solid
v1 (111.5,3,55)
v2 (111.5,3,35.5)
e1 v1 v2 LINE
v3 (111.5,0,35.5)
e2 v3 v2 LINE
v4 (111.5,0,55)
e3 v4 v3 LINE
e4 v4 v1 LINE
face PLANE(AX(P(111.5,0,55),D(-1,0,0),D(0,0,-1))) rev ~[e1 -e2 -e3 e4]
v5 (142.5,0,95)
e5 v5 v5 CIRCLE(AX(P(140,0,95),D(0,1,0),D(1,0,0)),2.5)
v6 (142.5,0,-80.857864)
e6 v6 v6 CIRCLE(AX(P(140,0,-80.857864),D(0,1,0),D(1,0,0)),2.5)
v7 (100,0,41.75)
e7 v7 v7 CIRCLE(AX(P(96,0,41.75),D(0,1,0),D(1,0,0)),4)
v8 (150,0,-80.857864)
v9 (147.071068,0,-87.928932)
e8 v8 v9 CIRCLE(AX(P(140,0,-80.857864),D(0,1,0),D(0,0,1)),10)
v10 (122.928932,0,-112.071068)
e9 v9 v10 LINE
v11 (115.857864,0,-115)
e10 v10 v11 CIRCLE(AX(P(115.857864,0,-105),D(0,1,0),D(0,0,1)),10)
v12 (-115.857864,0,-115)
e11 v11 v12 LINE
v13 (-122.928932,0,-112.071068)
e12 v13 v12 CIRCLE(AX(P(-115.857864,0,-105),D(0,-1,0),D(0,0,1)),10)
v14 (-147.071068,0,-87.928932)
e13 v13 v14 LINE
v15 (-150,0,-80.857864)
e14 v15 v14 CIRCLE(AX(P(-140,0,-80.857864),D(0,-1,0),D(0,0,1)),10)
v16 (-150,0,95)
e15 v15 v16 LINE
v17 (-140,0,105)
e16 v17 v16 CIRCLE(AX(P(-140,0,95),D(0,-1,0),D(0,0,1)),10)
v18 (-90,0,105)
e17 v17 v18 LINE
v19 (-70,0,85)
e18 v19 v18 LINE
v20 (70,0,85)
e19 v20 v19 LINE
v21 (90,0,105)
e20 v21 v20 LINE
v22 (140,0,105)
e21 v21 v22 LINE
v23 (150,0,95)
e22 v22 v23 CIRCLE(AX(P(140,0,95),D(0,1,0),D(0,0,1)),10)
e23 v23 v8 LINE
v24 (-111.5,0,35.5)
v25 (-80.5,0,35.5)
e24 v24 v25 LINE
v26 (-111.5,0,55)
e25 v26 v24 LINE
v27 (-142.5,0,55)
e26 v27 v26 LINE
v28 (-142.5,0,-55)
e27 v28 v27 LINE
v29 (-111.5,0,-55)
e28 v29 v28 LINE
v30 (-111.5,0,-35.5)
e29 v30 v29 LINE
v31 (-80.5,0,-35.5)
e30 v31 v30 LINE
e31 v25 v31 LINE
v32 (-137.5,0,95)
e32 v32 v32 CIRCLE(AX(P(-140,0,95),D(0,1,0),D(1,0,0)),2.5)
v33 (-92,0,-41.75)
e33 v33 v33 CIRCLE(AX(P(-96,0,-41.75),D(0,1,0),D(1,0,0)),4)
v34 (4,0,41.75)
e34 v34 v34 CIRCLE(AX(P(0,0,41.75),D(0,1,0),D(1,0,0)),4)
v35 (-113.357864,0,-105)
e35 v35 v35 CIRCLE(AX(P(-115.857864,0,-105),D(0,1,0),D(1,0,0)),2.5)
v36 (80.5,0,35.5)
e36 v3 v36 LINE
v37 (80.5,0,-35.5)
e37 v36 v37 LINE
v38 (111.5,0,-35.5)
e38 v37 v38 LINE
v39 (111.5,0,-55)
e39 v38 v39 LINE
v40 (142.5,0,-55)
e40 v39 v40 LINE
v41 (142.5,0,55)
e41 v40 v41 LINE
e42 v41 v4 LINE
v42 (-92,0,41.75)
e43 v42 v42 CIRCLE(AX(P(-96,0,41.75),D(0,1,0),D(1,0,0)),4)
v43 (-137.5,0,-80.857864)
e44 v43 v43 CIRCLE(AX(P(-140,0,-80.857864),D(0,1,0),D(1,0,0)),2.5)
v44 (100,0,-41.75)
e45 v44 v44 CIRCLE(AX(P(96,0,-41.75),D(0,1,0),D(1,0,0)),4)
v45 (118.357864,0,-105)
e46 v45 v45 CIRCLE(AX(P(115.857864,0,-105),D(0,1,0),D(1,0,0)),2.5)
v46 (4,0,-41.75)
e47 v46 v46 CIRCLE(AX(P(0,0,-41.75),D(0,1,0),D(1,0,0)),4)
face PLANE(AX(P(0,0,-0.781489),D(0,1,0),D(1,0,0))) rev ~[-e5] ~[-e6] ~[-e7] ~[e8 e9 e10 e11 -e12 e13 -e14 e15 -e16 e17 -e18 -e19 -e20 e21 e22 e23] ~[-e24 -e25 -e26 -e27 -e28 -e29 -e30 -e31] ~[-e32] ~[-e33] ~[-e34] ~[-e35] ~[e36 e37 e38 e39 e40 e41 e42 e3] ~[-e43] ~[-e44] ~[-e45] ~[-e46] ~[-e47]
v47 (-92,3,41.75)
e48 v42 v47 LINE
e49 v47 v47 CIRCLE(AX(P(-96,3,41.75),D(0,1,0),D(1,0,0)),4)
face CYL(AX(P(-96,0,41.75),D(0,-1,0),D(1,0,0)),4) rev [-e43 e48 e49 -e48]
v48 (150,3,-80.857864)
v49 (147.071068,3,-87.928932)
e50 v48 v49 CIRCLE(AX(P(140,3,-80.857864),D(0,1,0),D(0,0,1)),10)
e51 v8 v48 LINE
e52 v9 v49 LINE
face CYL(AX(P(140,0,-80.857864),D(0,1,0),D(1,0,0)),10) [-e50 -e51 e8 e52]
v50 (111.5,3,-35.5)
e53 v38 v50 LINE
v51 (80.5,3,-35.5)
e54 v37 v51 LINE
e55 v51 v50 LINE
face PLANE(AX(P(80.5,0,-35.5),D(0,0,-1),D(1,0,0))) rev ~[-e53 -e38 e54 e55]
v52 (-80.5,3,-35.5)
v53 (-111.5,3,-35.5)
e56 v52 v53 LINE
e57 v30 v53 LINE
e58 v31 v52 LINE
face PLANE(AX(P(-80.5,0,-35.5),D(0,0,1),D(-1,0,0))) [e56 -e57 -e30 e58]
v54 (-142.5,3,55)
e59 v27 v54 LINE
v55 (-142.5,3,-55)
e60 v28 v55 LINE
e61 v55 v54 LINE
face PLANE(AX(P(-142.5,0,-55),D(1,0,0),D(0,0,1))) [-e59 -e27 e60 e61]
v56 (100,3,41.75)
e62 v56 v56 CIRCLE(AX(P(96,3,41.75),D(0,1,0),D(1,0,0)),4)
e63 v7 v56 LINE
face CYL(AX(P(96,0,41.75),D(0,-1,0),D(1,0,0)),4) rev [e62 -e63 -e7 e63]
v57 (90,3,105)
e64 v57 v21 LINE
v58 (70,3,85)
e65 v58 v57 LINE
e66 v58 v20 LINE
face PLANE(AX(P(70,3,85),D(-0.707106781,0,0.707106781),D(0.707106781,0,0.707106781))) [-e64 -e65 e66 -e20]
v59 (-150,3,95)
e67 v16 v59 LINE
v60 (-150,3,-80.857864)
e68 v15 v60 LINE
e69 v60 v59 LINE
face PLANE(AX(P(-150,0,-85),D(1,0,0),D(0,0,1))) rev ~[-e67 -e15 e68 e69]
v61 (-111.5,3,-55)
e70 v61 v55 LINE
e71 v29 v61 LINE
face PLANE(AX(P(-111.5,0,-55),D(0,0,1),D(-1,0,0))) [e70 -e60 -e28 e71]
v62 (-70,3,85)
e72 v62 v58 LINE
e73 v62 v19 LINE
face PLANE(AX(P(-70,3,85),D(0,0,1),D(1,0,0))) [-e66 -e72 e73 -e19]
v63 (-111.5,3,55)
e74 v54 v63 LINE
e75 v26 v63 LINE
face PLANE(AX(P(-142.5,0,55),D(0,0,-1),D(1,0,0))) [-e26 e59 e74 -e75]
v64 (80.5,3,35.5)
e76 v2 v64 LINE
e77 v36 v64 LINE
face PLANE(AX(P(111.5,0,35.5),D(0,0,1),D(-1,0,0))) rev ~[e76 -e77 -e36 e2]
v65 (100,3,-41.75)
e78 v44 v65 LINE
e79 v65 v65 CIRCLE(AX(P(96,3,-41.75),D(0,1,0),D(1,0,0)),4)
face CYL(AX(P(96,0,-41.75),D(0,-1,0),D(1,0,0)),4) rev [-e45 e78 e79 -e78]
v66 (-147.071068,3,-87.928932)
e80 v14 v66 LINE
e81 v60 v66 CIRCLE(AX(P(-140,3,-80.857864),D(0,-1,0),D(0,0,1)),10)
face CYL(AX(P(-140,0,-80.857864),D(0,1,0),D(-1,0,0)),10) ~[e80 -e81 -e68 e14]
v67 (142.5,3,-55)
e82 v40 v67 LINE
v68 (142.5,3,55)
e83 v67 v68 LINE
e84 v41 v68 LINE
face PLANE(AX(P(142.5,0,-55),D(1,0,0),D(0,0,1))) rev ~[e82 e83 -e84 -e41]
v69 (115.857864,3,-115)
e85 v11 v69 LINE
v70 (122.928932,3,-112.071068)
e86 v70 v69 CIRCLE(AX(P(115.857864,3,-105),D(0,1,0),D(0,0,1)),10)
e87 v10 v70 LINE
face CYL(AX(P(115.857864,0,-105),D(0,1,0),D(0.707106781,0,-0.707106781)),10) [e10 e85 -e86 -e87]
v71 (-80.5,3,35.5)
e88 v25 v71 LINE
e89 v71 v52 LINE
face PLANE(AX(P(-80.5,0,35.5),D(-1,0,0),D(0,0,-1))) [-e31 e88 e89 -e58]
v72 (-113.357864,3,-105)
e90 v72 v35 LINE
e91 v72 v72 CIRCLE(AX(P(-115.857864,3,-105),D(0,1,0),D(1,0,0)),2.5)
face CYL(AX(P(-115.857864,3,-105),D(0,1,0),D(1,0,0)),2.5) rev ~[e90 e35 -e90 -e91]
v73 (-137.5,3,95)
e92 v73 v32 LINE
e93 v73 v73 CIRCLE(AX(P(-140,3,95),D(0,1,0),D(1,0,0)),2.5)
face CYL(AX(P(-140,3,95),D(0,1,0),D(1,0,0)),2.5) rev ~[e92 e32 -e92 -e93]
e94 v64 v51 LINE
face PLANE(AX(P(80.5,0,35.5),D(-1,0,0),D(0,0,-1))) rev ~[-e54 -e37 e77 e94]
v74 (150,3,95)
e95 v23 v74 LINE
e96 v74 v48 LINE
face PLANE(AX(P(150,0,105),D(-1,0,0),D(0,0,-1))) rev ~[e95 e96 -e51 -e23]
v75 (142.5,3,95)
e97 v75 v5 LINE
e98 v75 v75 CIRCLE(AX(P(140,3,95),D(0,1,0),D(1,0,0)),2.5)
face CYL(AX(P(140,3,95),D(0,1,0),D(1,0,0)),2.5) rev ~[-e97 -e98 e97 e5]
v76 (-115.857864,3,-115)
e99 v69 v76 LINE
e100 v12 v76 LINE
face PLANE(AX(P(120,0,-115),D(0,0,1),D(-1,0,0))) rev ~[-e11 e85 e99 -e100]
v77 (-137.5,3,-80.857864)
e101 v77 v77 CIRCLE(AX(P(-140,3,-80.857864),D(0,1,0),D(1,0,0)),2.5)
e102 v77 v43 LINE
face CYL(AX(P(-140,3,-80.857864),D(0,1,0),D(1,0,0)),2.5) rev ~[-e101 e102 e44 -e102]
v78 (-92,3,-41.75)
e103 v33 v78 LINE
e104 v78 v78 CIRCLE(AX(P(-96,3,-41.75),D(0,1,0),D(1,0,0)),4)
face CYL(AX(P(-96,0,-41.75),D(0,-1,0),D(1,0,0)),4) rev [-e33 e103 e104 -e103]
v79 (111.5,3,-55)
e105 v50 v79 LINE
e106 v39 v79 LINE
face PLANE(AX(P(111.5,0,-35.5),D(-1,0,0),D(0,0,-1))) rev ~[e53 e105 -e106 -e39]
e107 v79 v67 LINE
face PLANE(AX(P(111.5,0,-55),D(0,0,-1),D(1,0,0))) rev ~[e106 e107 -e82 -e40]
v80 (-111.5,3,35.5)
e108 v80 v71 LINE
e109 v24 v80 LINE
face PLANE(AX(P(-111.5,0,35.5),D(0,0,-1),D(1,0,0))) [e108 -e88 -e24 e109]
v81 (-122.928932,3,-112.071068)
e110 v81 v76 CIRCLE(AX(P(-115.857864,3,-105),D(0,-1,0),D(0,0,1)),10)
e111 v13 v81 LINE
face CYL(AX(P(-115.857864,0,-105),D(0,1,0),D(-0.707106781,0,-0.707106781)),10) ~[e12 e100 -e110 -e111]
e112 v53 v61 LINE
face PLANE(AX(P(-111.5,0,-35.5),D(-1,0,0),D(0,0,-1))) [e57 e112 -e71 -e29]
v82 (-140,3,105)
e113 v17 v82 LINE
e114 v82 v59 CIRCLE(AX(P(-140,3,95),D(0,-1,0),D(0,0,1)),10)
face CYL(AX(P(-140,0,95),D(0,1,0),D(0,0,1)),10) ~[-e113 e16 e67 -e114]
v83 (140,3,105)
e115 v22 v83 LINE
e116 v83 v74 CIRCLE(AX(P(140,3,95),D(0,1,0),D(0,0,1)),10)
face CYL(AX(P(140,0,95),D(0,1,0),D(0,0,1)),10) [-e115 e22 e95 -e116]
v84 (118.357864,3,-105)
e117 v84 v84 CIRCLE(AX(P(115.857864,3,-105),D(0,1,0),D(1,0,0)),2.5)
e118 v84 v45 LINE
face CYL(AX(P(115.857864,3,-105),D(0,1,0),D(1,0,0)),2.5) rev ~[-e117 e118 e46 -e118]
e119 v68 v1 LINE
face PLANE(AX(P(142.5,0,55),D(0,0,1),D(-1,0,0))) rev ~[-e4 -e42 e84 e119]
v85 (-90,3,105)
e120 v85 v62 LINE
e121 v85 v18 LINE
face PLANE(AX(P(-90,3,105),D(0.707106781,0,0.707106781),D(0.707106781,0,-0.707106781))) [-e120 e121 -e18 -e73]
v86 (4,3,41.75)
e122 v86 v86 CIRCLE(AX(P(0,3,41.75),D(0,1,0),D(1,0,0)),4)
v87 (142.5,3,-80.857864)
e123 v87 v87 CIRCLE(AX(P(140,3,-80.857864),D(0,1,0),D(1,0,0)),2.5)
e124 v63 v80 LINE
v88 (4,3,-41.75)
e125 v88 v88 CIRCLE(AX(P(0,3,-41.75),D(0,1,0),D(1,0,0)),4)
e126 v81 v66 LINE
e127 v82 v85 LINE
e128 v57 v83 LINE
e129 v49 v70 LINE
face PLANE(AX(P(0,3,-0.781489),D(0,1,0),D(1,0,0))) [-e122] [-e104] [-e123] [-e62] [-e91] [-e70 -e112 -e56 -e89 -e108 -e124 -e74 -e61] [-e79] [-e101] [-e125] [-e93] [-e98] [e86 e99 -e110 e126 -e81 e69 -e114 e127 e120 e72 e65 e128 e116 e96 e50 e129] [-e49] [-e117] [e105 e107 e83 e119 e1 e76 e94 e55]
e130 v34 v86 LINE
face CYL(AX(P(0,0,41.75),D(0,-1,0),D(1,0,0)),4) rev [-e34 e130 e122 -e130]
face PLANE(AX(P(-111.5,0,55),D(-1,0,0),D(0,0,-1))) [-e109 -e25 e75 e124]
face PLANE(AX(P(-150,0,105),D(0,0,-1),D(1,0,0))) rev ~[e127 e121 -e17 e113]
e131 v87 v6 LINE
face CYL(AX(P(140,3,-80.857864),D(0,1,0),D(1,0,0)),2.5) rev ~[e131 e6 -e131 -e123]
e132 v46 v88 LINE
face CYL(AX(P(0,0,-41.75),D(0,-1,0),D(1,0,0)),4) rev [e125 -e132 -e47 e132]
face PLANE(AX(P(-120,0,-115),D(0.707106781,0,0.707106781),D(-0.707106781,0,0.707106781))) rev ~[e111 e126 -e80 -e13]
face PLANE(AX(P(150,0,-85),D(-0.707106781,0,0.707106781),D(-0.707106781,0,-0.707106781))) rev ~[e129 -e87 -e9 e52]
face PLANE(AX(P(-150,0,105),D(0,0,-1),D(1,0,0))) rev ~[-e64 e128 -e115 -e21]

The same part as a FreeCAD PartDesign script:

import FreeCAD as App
import Part
import Sketcher
from FreeCAD import Vector


def edges_at(feature, points):
    """Names of the edges that pass closest to the given points."""
    edges = feature.Shape.Edges
    near = lambda p: min(range(len(edges)), key=lambda i: edges[i].distToShape(Part.Vertex(*p))[0])
    return sorted({f"Edge{near(p) + 1}" for p in points})


def add_polygon(sketch, points):
    """Adds a closed chain of lines whose ends are joined by coincident constraints."""
    first, n = sketch.GeometryCount, len(points)
    for a, b in zip(points, points[1:] + points[:1]):
        sketch.addGeometry(Part.LineSegment(App.Vector(*a, 0), App.Vector(*b, 0)), False)
    for i in range(n):
        sketch.addConstraint(Sketcher.Constraint("Coincident", first + i, 2, first + (i + 1) % n, 1))

doc = App.newDocument("Part")
body = doc.addObject("PartDesign::Body", "Body")

sketch1 = body.newObject("Sketcher::SketchObject", "Sketch")
sketch1.AttachmentSupport = (doc.getObject("XZ_Plane"), [""])
sketch1.MapMode = "FlatFace"
add_polygon(sketch1, [(-150, 105), (150, 105), (150, -85), (120, -115), (-120, -115), (-150, -85)])
sketch1.addGeometry(Part.Circle(Vector(-96, 41.8, 0), Vector(0, 0, 1), 4), False)
sketch1.addGeometry(Part.Circle(Vector(0, 41.8, 0), Vector(0, 0, 1), 4), False)
sketch1.addGeometry(Part.Circle(Vector(96, 41.8, 0), Vector(0, 0, 1), 4), False)
add_polygon(sketch1, [(-142.5, 55), (-142.5, -55), (-111.5, -55), (-111.5, -35.5), (-80.5, -35.5), (-80.5, 35.5), (-111.5, 35.5), (-111.5, 55)])
sketch1.addGeometry(Part.Circle(Vector(-96, -41.8, 0), Vector(0, 0, 1), 4), False)
add_polygon(sketch1, [(111.5, -35.5), (111.5, -55), (142.5, -55), (142.5, 55), (111.5, 55), (111.5, 35.5), (80.5, 35.5), (80.5, -35.5)])
sketch1.addGeometry(Part.Circle(Vector(0, -41.8, 0), Vector(0, 0, 1), 4), False)
sketch1.addGeometry(Part.Circle(Vector(96, -41.8, 0), Vector(0, 0, 1), 4), False)
sketch1.addConstraint(Sketcher.Constraint("Horizontal", 0))
sketch1.addConstraint(Sketcher.Constraint("Vertical", 1))
sketch1.addConstraint(Sketcher.Constraint("Horizontal", 3))
sketch1.addConstraint(Sketcher.Constraint("Vertical", 5))
sketch1.addConstraint(Sketcher.Constraint("Vertical", 9))
sketch1.addConstraint(Sketcher.Constraint("Horizontal", 10))
sketch1.addConstraint(Sketcher.Constraint("Vertical", 11))
sketch1.addConstraint(Sketcher.Constraint("Horizontal", 12))
sketch1.addConstraint(Sketcher.Constraint("Vertical", 13))
sketch1.addConstraint(Sketcher.Constraint("Horizontal", 14))
sketch1.addConstraint(Sketcher.Constraint("Vertical", 15))
sketch1.addConstraint(Sketcher.Constraint("Horizontal", 16))
sketch1.addConstraint(Sketcher.Constraint("Vertical", 18))
sketch1.addConstraint(Sketcher.Constraint("Horizontal", 19))
sketch1.addConstraint(Sketcher.Constraint("Vertical", 20))
sketch1.addConstraint(Sketcher.Constraint("Horizontal", 21))
sketch1.addConstraint(Sketcher.Constraint("Vertical", 22))
sketch1.addConstraint(Sketcher.Constraint("Horizontal", 23))
sketch1.addConstraint(Sketcher.Constraint("Vertical", 24))
sketch1.addConstraint(Sketcher.Constraint("Horizontal", 25))
sketch1.addConstraint(Sketcher.Constraint("Equal", 6, 7))
sketch1.addConstraint(Sketcher.Constraint("Equal", 7, 8))
sketch1.addConstraint(Sketcher.Constraint("Equal", 8, 17))
sketch1.addConstraint(Sketcher.Constraint("Equal", 17, 26))
sketch1.addConstraint(Sketcher.Constraint("Equal", 26, 27))
sketch1.addConstraint(Sketcher.Constraint("Symmetric", 8, 3, 17, 3, -1, 1))
sketch1.addConstraint(Sketcher.Constraint("Symmetric", 7, 3, 26, 3, -1, 1))
sketch1.addConstraint(Sketcher.Constraint("Symmetric", 6, 3, 27, 3, -1, 1))
sketch1.addConstraint(Sketcher.Constraint("Symmetric", 15, 2, 18, 2, -1, 1))
sketch1.addConstraint(Sketcher.Constraint("Symmetric", 9, 2, 20, 2, -1, 1))
sketch1.addConstraint(Sketcher.Constraint("Symmetric", 11, 2, 22, 2, -1, 1))
sketch1.addConstraint(Sketcher.Constraint("Symmetric", 13, 2, 24, 2, -1, 1))
sketch1.addConstraint(Sketcher.Constraint("Symmetric", 6, 3, 8, 3, -2))
sketch1.addConstraint(Sketcher.Constraint("Symmetric", 1, 2, 4, 2, -2))
sketch1.addConstraint(Sketcher.Constraint("Symmetric", 10, 2, 18, 2, -2))
sketch1.addConstraint(Sketcher.Constraint("PointOnObject", 7, 3, -2))
sketch1.addConstraint(Sketcher.Constraint("Perpendicular", 2, 4))
sketch1.addConstraint(Sketcher.Constraint("Horizontal", 6, 3, 7, 3))
sketch1.addConstraint(Sketcher.Constraint("Horizontal", 14, 2, 22, 2))
sketch1.addConstraint(Sketcher.Constraint("Equal", 10, 12))
sketch1.addConstraint(Sketcher.Constraint("Equal", 2, 4))
sketch1.addConstraint(Sketcher.Constraint("Diameter", 6, 8.0))
sketch1.addConstraint(Sketcher.Constraint("DistanceX", 0, 1, 0, 2, 300.0))
sketch1.addConstraint(Sketcher.Constraint("DistanceX", 3, 2, 3, 1, 240.0))
sketch1.addConstraint(Sketcher.Constraint("DistanceX", 10, 1, 10, 2, 31.0))
sketch1.addConstraint(Sketcher.Constraint("DistanceY", 1, 2, 1, 1, 190.0))
sketch1.addConstraint(Sketcher.Constraint("DistanceY", 9, 2, 9, 1, 110.0))
sketch1.addConstraint(Sketcher.Constraint("DistanceY", 13, 1, 13, 2, 71.0))
sketch1.addConstraint(Sketcher.Constraint("DistanceX", 6, 3, -1, 1, 96.0))
sketch1.addConstraint(Sketcher.Constraint("DistanceY", -1, 1, 0, 2, 105.0))
sketch1.addConstraint(Sketcher.Constraint("DistanceX", 9, 2, -1, 1, 142.5))
sketch1.addConstraint(Sketcher.Constraint("DistanceY", 17, 3, 6, 3, 83.5))
pad1 = body.newObject("PartDesign::Pad", "Pad")
pad1.Profile = sketch1
pad1.Length = 3
pad1.Reversed = True
doc.recompute()

fillet = body.newObject("PartDesign::Fillet", "Fillet")
fillet.Base = (pad1, edges_at(pad1, [
    (150, 1.5, -85),
    (150, 1.5, 105),
    (-150, 1.5, 105),
    (-150, 1.5, -85),
    (-120, 1.5, -115),
    (120, 1.5, -115),
]))
fillet.Radius = 10

sketch2 = body.newObject("Sketcher::SketchObject", "Sketch001")
sketch2.AttachmentSupport = (doc.getObject("XZ_Plane"), [""])
sketch2.MapMode = "FlatFace"
sketch2.AttachmentOffset = App.Placement(Vector(0, 0, -3), App.Rotation())
sketch2.addGeometry(Part.Circle(Vector(-140, 95, 0), Vector(0, 0, 1), 2.5), False)
sketch2.addConstraint(Sketcher.Constraint("Diameter", 0, 5.0))
sketch2.addConstraint(Sketcher.Constraint("DistanceX", 0, 3, -1, 1, 140.0))
sketch2.addConstraint(Sketcher.Constraint("DistanceY", -1, 1, 0, 3, 95.0))
pocket1 = body.newObject("PartDesign::Pocket", "Pocket")
pocket1.Profile = sketch2
pocket1.Type = "UpToFirst"
pocket1.Reversed = True

sketch3 = body.newObject("Sketcher::SketchObject", "Sketch002")
sketch3.AttachmentSupport = (doc.getObject("XZ_Plane"), [""])
sketch3.MapMode = "FlatFace"
sketch3.AttachmentOffset = App.Placement(Vector(0, 0, -3), App.Rotation())
sketch3.addGeometry(Part.Circle(Vector(-140, -80.9, 0), Vector(0, 0, 1), 2.5), False)
sketch3.addConstraint(Sketcher.Constraint("Diameter", 0, 5.0))
sketch3.addConstraint(Sketcher.Constraint("DistanceX", 0, 3, -1, 1, 140.0))
sketch3.addConstraint(Sketcher.Constraint("DistanceY", 0, 3, -1, 1, 80.857864))
pocket2 = body.newObject("PartDesign::Pocket", "Pocket001")
pocket2.Profile = sketch3
pocket2.Type = "UpToFirst"
pocket2.Reversed = True

sketch4 = body.newObject("Sketcher::SketchObject", "Sketch003")
sketch4.AttachmentSupport = (doc.getObject("XZ_Plane"), [""])
sketch4.MapMode = "FlatFace"
sketch4.AttachmentOffset = App.Placement(Vector(0, 0, -3), App.Rotation())
sketch4.addGeometry(Part.Circle(Vector(-115.9, -105, 0), Vector(0, 0, 1), 2.5), False)
sketch4.addConstraint(Sketcher.Constraint("Diameter", 0, 5.0))
sketch4.addConstraint(Sketcher.Constraint("DistanceY", 0, 3, -1, 1, 105.0))
sketch4.addConstraint(Sketcher.Constraint("DistanceX", 0, 3, -1, 1, 115.857864))
pocket3 = body.newObject("PartDesign::Pocket", "Pocket002")
pocket3.Profile = sketch4
pocket3.Type = "UpToFirst"
pocket3.Reversed = True

sketch5 = body.newObject("Sketcher::SketchObject", "Sketch004")
sketch5.AttachmentSupport = (doc.getObject("XZ_Plane"), [""])
sketch5.MapMode = "FlatFace"
sketch5.AttachmentOffset = App.Placement(Vector(0, 0, -3), App.Rotation())
sketch5.addGeometry(Part.Circle(Vector(140, 95, 0), Vector(0, 0, 1), 2.5), False)
sketch5.addConstraint(Sketcher.Constraint("Diameter", 0, 5.0))
sketch5.addConstraint(Sketcher.Constraint("DistanceX", -1, 1, 0, 3, 140.0))
sketch5.addConstraint(Sketcher.Constraint("DistanceY", -1, 1, 0, 3, 95.0))
pocket4 = body.newObject("PartDesign::Pocket", "Pocket003")
pocket4.Profile = sketch5
pocket4.Type = "UpToFirst"
pocket4.Reversed = True

sketch6 = body.newObject("Sketcher::SketchObject", "Sketch005")
sketch6.AttachmentSupport = (doc.getObject("XZ_Plane"), [""])
sketch6.MapMode = "FlatFace"
sketch6.AttachmentOffset = App.Placement(Vector(0, 0, -3), App.Rotation())
sketch6.addGeometry(Part.Circle(Vector(140, -80.9, 0), Vector(0, 0, 1), 2.5), False)
sketch6.addConstraint(Sketcher.Constraint("Diameter", 0, 5.0))
sketch6.addConstraint(Sketcher.Constraint("DistanceX", -1, 1, 0, 3, 140.0))
sketch6.addConstraint(Sketcher.Constraint("DistanceY", 0, 3, -1, 1, 80.857864))
pocket5 = body.newObject("PartDesign::Pocket", "Pocket004")
pocket5.Profile = sketch6
pocket5.Type = "UpToFirst"
pocket5.Reversed = True

sketch7 = body.newObject("Sketcher::SketchObject", "Sketch006")
sketch7.AttachmentSupport = (doc.getObject("XZ_Plane"), [""])
sketch7.MapMode = "FlatFace"
sketch7.AttachmentOffset = App.Placement(Vector(0, 0, -3), App.Rotation())
sketch7.addGeometry(Part.Circle(Vector(115.9, -105, 0), Vector(0, 0, 1), 2.5), False)
sketch7.addConstraint(Sketcher.Constraint("Diameter", 0, 5.0))
sketch7.addConstraint(Sketcher.Constraint("DistanceY", 0, 3, -1, 1, 105.0))
sketch7.addConstraint(Sketcher.Constraint("DistanceX", -1, 1, 0, 3, 115.857864))
pocket6 = body.newObject("PartDesign::Pocket", "Pocket005")
pocket6.Profile = sketch7
pocket6.Type = "UpToFirst"
pocket6.Reversed = True

sketch8 = body.newObject("Sketcher::SketchObject", "Sketch007")
sketch8.AttachmentSupport = (doc.getObject("XZ_Plane"), [""])
sketch8.MapMode = "FlatFace"
sketch8.AttachmentOffset = App.Placement(Vector(0, 0, -3), App.Rotation())
add_polygon(sketch8, [(-70, 85), (-90, 105), (90, 105), (70, 85)])
sketch8.addConstraint(Sketcher.Constraint("Horizontal", 1))
sketch8.addConstraint(Sketcher.Constraint("Horizontal", 3))
sketch8.addConstraint(Sketcher.Constraint("Perpendicular", 0, 2))
sketch8.addConstraint(Sketcher.Constraint("Equal", 0, 2))
sketch8.addConstraint(Sketcher.Constraint("DistanceX", 1, 1, 1, 2, 180.0))
sketch8.addConstraint(Sketcher.Constraint("DistanceX", 3, 2, 3, 1, 140.0))
sketch8.addConstraint(Sketcher.Constraint("DistanceX", 0, 2, -1, 1, 90.0))
sketch8.addConstraint(Sketcher.Constraint("DistanceY", -1, 1, 0, 2, 105.0))
pocket7 = body.newObject("PartDesign::Pocket", "Pocket006")
pocket7.Profile = sketch8
pocket7.Type = "UpToFirst"
pocket7.Reversed = True

doc.recompute()
